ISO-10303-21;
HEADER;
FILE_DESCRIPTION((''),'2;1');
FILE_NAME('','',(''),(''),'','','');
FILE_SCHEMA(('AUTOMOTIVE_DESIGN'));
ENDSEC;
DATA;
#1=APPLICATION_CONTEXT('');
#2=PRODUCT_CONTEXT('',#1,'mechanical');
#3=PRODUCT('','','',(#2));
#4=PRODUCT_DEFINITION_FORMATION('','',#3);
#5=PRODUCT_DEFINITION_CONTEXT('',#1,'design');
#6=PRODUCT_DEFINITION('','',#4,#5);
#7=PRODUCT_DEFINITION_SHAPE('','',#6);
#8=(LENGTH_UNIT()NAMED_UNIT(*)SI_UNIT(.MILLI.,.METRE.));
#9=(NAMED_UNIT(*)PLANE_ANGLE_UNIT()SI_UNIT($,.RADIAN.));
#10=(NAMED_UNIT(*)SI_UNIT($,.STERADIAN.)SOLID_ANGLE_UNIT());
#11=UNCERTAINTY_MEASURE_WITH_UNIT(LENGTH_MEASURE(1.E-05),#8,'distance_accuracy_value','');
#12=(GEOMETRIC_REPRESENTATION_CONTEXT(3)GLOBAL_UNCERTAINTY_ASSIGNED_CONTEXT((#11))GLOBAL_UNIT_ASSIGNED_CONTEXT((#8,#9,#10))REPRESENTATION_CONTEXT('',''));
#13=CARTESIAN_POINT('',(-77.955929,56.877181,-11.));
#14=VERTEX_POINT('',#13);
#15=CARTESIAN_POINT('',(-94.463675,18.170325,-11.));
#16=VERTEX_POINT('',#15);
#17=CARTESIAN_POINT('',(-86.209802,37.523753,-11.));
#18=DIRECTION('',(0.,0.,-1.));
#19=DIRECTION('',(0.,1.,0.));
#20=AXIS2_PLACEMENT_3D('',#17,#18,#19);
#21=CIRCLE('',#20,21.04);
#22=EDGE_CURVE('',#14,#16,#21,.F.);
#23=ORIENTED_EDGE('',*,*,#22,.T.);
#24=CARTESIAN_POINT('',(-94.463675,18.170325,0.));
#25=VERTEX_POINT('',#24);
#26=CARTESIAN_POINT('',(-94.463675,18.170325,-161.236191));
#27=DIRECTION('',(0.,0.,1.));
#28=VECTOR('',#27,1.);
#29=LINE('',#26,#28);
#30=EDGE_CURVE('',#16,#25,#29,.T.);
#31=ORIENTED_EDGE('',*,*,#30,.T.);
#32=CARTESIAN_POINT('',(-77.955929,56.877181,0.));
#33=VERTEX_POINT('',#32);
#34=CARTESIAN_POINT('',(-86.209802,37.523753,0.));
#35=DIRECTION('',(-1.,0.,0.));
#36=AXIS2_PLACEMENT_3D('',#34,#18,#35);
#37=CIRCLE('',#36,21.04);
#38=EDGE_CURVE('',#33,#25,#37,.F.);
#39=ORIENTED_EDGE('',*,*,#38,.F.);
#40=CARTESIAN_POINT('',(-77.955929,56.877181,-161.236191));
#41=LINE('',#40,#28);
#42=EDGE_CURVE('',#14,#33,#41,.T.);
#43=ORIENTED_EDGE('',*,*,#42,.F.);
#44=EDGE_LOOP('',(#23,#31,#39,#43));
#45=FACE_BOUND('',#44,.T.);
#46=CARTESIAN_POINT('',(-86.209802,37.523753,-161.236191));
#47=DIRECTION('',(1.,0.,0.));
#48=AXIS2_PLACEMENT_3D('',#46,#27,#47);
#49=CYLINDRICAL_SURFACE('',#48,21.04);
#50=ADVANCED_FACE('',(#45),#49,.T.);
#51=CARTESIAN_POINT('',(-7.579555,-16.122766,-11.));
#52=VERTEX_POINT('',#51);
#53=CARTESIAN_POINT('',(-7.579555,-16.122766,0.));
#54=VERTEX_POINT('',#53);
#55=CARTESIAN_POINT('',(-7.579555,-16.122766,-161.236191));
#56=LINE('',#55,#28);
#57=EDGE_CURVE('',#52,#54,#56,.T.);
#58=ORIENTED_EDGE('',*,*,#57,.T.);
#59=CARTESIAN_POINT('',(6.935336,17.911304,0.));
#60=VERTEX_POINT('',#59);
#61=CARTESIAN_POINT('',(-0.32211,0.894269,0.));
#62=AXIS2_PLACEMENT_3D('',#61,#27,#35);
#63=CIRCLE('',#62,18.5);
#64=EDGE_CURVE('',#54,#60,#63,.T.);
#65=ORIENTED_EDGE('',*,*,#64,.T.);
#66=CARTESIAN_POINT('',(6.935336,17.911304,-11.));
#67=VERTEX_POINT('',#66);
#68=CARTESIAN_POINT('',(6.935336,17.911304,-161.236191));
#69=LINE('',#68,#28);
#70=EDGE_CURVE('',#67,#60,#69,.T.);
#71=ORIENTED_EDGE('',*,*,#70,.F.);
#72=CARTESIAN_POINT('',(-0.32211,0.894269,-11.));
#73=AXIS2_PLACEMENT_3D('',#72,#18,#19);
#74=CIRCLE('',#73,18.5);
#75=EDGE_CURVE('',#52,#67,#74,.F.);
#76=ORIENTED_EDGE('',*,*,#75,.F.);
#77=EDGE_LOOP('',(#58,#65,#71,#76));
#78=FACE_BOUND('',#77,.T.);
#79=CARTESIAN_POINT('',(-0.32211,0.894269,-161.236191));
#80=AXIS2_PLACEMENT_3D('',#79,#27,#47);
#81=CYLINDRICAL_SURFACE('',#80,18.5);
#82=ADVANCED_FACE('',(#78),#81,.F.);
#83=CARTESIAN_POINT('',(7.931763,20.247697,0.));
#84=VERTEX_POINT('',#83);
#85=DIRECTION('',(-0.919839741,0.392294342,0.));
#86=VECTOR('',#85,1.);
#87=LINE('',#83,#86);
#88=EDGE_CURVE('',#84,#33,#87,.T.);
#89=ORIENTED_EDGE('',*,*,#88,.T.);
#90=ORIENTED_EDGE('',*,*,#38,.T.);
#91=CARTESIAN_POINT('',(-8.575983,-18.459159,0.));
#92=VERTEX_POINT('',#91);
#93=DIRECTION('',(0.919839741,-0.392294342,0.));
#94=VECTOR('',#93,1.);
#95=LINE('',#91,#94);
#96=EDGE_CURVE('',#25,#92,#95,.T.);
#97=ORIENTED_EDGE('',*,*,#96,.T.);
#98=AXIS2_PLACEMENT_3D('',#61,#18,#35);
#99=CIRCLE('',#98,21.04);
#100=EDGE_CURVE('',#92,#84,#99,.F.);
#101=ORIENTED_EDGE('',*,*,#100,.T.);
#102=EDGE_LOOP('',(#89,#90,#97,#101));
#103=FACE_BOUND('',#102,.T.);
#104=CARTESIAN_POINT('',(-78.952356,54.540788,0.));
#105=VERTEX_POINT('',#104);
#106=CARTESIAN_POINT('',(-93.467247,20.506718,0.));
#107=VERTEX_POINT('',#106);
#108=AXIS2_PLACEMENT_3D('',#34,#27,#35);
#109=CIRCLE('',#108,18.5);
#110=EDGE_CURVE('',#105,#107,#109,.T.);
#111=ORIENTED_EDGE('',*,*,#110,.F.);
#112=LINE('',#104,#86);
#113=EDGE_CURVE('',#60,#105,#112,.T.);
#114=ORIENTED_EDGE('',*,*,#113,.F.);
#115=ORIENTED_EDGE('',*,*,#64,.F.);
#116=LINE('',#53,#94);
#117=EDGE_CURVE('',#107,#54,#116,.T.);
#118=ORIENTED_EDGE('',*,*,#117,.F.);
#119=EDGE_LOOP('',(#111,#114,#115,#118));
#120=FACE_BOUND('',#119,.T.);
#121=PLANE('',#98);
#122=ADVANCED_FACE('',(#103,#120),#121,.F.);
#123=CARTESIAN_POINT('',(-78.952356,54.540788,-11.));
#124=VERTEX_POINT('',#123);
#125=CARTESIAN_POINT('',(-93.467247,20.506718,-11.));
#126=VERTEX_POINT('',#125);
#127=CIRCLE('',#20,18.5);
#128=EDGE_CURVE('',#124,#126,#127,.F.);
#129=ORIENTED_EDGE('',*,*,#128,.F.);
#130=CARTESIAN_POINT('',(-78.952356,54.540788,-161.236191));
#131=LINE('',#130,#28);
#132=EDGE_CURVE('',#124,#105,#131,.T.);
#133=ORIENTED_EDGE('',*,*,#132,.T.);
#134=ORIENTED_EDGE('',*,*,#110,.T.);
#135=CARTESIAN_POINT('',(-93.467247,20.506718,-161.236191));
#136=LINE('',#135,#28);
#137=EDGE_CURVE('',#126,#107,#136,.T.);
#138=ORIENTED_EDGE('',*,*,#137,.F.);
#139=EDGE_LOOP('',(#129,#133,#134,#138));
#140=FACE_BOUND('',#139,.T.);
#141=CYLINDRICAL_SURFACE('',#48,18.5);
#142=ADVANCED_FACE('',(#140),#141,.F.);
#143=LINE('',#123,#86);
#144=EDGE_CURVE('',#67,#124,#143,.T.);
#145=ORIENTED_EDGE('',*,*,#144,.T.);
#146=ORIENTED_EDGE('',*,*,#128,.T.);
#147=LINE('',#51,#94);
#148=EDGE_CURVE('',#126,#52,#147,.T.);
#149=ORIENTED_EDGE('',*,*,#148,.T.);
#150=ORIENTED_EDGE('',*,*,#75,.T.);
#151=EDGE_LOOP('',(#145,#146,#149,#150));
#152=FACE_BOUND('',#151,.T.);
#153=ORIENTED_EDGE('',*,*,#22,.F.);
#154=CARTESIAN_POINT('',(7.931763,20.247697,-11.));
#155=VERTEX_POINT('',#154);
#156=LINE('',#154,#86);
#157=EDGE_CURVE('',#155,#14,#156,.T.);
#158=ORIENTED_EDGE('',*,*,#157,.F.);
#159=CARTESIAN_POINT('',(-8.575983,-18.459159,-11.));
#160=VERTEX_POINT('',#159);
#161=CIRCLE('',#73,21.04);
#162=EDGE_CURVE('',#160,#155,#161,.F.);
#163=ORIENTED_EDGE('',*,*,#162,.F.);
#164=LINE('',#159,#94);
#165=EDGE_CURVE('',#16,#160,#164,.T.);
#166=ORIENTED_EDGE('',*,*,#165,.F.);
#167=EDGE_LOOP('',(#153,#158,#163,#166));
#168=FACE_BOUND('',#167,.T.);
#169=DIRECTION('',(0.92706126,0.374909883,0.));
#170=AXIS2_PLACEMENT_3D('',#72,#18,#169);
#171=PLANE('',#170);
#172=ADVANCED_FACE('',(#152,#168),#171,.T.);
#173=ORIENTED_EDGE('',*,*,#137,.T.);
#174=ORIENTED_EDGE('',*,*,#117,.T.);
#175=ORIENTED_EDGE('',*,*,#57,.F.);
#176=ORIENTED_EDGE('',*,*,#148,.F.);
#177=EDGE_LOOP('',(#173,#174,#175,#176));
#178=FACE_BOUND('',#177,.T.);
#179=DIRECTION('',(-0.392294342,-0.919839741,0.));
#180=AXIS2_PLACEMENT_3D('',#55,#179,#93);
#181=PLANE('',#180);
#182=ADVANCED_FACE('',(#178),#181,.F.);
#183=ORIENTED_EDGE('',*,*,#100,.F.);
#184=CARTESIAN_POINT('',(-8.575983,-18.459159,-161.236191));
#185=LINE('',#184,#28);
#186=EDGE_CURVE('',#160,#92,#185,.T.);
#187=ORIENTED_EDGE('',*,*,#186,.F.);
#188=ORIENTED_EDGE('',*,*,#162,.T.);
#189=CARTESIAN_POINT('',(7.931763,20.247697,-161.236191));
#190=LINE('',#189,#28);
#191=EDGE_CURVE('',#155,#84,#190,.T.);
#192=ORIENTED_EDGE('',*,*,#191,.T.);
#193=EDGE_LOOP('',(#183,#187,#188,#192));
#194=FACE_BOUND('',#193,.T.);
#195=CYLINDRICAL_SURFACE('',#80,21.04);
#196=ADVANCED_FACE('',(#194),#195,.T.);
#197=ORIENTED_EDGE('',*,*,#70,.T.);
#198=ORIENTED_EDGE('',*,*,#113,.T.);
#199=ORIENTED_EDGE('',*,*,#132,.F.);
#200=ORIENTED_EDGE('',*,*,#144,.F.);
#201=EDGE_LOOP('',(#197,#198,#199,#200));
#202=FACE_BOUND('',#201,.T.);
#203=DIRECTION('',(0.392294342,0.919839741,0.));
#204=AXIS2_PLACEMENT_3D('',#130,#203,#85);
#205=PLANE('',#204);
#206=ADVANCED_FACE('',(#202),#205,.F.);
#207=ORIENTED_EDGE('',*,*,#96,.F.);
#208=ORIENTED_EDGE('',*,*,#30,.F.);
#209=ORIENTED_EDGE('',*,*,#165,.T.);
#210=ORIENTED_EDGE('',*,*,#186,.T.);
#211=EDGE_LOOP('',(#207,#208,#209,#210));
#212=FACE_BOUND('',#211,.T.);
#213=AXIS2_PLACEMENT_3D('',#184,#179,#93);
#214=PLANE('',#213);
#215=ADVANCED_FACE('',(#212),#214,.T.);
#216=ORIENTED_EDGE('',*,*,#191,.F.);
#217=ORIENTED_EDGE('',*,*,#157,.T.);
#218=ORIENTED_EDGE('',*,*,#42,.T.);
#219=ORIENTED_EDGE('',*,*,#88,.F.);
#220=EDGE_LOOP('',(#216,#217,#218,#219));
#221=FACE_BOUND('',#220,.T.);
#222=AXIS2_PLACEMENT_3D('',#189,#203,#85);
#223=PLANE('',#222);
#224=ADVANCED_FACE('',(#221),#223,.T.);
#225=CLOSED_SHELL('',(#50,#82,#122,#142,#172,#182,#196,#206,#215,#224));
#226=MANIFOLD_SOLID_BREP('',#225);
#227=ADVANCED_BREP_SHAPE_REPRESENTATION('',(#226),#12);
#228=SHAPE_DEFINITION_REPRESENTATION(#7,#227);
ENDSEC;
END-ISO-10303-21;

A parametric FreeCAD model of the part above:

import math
import FreeCAD as App
import Part
import Sketcher
from FreeCAD import Vector

doc = App.newDocument("Part")
body = doc.addObject("PartDesign::Body", "Body")

# Sketch on XY plane
sketch1 = body.newObject("Sketcher::SketchObject", "Sketch")
sketch1.AttachmentSupport = (doc.getObject("XY_Plane"), [""])
sketch1.MapMode = "FlatFace"
sketch1.addGeometry([
    Part.LineSegment(Vector(7.931763, 20.247697, 0), Vector(-77.955929, 56.877181, 0)),  # 0
    Part.ArcOfCircle(Part.Circle(Vector(-86.209802, 37.523753, 0), Vector(0, 0, 1), 21.04), math.radians(66.902664), math.radians(246.902664)),  # 1
    Part.LineSegment(Vector(-94.463675, 18.170325, 0), Vector(-8.575983, -18.459159, 0)),  # 2
    Part.ArcOfCircle(Part.Circle(Vector(-0.32211, 0.894269, 0), Vector(0, 0, 1), 21.04), math.radians(-113.097336), math.radians(66.902664)),  # 3
    Part.LineSegment(Vector(-78.952356, 54.540788, 0), Vector(6.935336, 17.911304, 0)),  # 4
    Part.ArcOfCircle(Part.Circle(Vector(-0.32211, 0.894269, 0), Vector(0, 0, 1), 18.5), math.radians(-113.097336), math.radians(66.902664)),  # 5
    Part.LineSegment(Vector(-7.579555, -16.122766, 0), Vector(-93.467247, 20.506718, 0)),  # 6
    Part.ArcOfCircle(Part.Circle(Vector(-86.209802, 37.523753, 0), Vector(0, 0, 1), 18.5), math.radians(66.902664), math.radians(246.902664)),  # 7
], False)
sketch1.addConstraint([
    Sketcher.Constraint("Tangent", 0, 2, 1, 1),
    Sketcher.Constraint("Tangent", 1, 2, 2, 1),
    Sketcher.Constraint("Tangent", 2, 2, 3, 1),
    Sketcher.Constraint("Tangent", 3, 2, 0, 1),
    Sketcher.Constraint("Tangent", 4, 2, 5, 2),
    Sketcher.Constraint("Tangent", 5, 1, 6, 1),
    Sketcher.Constraint("Tangent", 6, 2, 7, 2),
    Sketcher.Constraint("Tangent", 7, 1, 4, 1),
    Sketcher.Constraint("Coincident", 5, 3, 3, 3),
    Sketcher.Constraint("Coincident", 7, 3, 1, 3),
    Sketcher.Constraint("Equal", 1, 3),
    Sketcher.Constraint("Equal", 5, 7),
    Sketcher.Constraint("Radius", 5, 18.5),
    Sketcher.Constraint("Radius", 1, 21.04),
    Sketcher.Constraint("DistanceX", 1, 3, -1, 1, 86.209802),
    Sketcher.Constraint("Distance", 0, 93.372452),
    Sketcher.Constraint("DistanceX", 3, 3, -1, 1, 0.32211),
    Sketcher.Constraint("DistanceY", -1, 1, 3, 3, 0.894269),
])
pad1 = body.newObject("PartDesign::Pad", "Pad")
pad1.Profile = sketch1
pad1.Length = 11
pad1.Reversed = True

doc.recompute()
